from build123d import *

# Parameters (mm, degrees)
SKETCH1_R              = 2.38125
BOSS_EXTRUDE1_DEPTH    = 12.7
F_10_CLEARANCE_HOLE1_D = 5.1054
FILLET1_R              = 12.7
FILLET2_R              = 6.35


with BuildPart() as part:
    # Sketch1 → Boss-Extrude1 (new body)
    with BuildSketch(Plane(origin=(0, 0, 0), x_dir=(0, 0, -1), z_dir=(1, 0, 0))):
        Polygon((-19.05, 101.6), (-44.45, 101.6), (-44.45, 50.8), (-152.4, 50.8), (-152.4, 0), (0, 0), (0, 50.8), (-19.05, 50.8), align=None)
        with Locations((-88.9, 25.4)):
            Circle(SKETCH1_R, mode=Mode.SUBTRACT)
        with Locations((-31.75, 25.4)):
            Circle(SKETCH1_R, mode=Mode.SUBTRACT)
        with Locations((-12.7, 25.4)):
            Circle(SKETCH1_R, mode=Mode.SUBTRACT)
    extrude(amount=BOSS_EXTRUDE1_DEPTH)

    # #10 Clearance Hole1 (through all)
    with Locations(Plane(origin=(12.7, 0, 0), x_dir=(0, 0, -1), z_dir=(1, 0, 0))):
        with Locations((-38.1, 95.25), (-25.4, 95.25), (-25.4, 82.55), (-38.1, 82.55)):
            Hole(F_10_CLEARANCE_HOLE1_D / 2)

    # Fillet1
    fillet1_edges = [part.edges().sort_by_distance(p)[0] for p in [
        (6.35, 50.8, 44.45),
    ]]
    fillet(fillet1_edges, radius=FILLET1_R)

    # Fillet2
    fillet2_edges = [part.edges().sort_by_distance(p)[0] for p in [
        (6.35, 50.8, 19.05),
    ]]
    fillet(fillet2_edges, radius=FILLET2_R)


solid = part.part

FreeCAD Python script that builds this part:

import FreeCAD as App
import Part
import Sketcher
from FreeCAD import Vector
Q = App.Units.Quantity


def edges_at(feature, points):
    """Names of the edges that pass closest to the given points."""
    edges = feature.Shape.Edges
    near = lambda p: min(range(len(edges)), key=lambda i: edges[i].distToShape(Part.Vertex(*p))[0])
    return sorted({f"Edge{near(p) + 1}" for p in points})

doc = App.newDocument("Part")
body = doc.addObject("PartDesign::Body", "Body")

sketch1 = body.newObject("Sketcher::SketchObject", "Sketch")
sketch1.AttachmentSupport = (doc.getObject("YZ_Plane"), [""])
sketch1.MapMode = "FlatFace"
sketch1.addGeometry([
    Part.LineSegment(Vector(101.6, 19.05, 0), Vector(101.6, 44.45, 0)),
    Part.LineSegment(Vector(101.6, 44.45, 0), Vector(50.8, 44.45, 0)),
    Part.LineSegment(Vector(50.8, 44.45, 0), Vector(50.8, 152.4, 0)),
    Part.LineSegment(Vector(50.8, 152.4, 0), Vector(0, 152.4, 0)),
    Part.LineSegment(Vector(0, 152.4, 0), Vector(0, 0, 0)),
    Part.LineSegment(Vector(0, 0, 0), Vector(50.8, 0, 0)),
    Part.LineSegment(Vector(50.8, 0, 0), Vector(50.8, 19.05, 0)),
    Part.LineSegment(Vector(50.8, 19.05, 0), Vector(101.6, 19.05, 0)),
    Part.Circle(Vector(25.4, 88.9, 0), Vector(0, 0, 1), 2.38125),
    Part.Circle(Vector(25.4, 31.75, 0), Vector(0, 0, 1), 2.38125),
    Part.Circle(Vector(25.4, 12.7, 0), Vector(0, 0, 1), 2.38125),
], False)
sketch1.addConstraint([
    Sketcher.Constraint("Coincident", 0, 2, 1, 1),
    Sketcher.Constraint("Coincident", 1, 2, 2, 1),
    Sketcher.Constraint("Coincident", 2, 2, 3, 1),
    Sketcher.Constraint("Coincident", 3, 2, 4, 1),
    Sketcher.Constraint("Coincident", 4, 2, 5, 1),
    Sketcher.Constraint("Coincident", 5, 2, 6, 1),
    Sketcher.Constraint("Coincident", 6, 2, 7, 1),
    Sketcher.Constraint("Coincident", 7, 2, 0, 1),
    Sketcher.Constraint("Vertical", 0),
    Sketcher.Constraint("Horizontal", 1),
    Sketcher.Constraint("Vertical", 2),
    Sketcher.Constraint("Horizontal", 3),
    Sketcher.Constraint("Vertical", 4),
    Sketcher.Constraint("Horizontal", 5),
    Sketcher.Constraint("Vertical", 6),
    Sketcher.Constraint("Horizontal", 7),
    Sketcher.Constraint("Coincident", 4, 2, -1, 1),
    Sketcher.Constraint("Equal", 8, 9),
    Sketcher.Constraint("Equal", 9, 10),
    Sketcher.Constraint("Vertical", 8, 3, 9, 3),
    Sketcher.Constraint("Vertical", 9, 3, 10, 3),
    Sketcher.Constraint("Vertical", 2, 2, 5, 2),
    Sketcher.Constraint("Equal", 1, 3),
    Sketcher.Constraint("DistanceX", 1, 2, 1, 1, Q("2 in")),
    Sketcher.Constraint("DistanceY", 0, 1, 0, 2, Q("1 in")),
    Sketcher.Constraint("DistanceY", 4, 2, 4, 1, Q("6 in")),
    Sketcher.Constraint("Diameter", 8, Q("0.1875 in")),
    Sketcher.Constraint("DistanceX", -1, 1, 8, 3, Q("1 in")),
    Sketcher.Constraint("DistanceY", 10, 3, 8, 3, Q("3 in")),
    Sketcher.Constraint("DistanceY", 2, 1, 2, 2, Q("4.25 in")),
    Sketcher.Constraint("DistanceY", -1, 1, 8, 3, Q("3.5 in")),
    Sketcher.Constraint("DistanceY", 9, 3, 0, 2, Q("0.5 in")),
])
pad1 = body.newObject("PartDesign::Pad", "Pad")
pad1.Profile = sketch1
pad1.Length = Q("0.5 in")

sketch2 = body.newObject("Sketcher::SketchObject", "Sketch001")
sketch2.AttachmentSupport = (doc.getObject("YZ_Plane"), [""])
sketch2.MapMode = "FlatFace"
sketch2.AttachmentOffset = App.Placement(Vector(0, 0, 0.5 * 25.4), App.Rotation())
sketch2.addGeometry([
    Part.Circle(Vector(95.25, 38.1, 0), Vector(0, 0, 1), 2.5527),
    Part.Circle(Vector(95.25, 25.4, 0), Vector(0, 0, 1), 2.5527),
    Part.Circle(Vector(82.55, 25.4, 0), Vector(0, 0, 1), 2.5527),
    Part.Circle(Vector(82.55, 38.1, 0), Vector(0, 0, 1), 2.5527),
], False)
sketch2.addConstraint([
    Sketcher.Constraint("Equal", 0, 1),
    Sketcher.Constraint("Equal", 1, 2),
    Sketcher.Constraint("Equal", 2, 3),
    Sketcher.Constraint("Horizontal", 1, 3, 2, 3),
    Sketcher.Constraint("Horizontal", 0, 3, 3, 3),
    Sketcher.Constraint("Vertical", 0, 3, 1, 3),
    Sketcher.Constraint("Vertical", 2, 3, 3, 3),
    Sketcher.Constraint("Diameter", 0, Q("0.201 in")),
    Sketcher.Constraint("DistanceY", -1, 1, 1, 3, Q("1 in")),
    Sketcher.Constraint("DistanceY", -1, 1, 0, 3, Q("1.5 in")),
    Sketcher.Constraint("DistanceX", 2, 3, 1, 3, Q("0.5 in")),
    Sketcher.Constraint("DistanceX", -1, 1, 0, 3, Q("3.75 in")),
])
doc.recompute()
hole = body.newObject("PartDesign::Hole", "Hole")
hole.Profile = sketch2
hole.ThreadType = "None"
hole.Diameter = Q("0.201 in")
hole.DepthType = "ThroughAll"
doc.recompute()

fillet = body.newObject("PartDesign::Fillet", "Fillet")
fillet.Base = (hole, edges_at(hole, [(6.35, 50.8, 44.45)]))
fillet.Radius = Q("0.5 in")
doc.recompute()

fillet2 = body.newObject("PartDesign::Fillet", "Fillet001")
fillet2.Base = (fillet, edges_at(fillet, [(6.35, 50.8, 19.05)]))
fillet2.Radius = Q("0.25 in")

doc.recompute()
